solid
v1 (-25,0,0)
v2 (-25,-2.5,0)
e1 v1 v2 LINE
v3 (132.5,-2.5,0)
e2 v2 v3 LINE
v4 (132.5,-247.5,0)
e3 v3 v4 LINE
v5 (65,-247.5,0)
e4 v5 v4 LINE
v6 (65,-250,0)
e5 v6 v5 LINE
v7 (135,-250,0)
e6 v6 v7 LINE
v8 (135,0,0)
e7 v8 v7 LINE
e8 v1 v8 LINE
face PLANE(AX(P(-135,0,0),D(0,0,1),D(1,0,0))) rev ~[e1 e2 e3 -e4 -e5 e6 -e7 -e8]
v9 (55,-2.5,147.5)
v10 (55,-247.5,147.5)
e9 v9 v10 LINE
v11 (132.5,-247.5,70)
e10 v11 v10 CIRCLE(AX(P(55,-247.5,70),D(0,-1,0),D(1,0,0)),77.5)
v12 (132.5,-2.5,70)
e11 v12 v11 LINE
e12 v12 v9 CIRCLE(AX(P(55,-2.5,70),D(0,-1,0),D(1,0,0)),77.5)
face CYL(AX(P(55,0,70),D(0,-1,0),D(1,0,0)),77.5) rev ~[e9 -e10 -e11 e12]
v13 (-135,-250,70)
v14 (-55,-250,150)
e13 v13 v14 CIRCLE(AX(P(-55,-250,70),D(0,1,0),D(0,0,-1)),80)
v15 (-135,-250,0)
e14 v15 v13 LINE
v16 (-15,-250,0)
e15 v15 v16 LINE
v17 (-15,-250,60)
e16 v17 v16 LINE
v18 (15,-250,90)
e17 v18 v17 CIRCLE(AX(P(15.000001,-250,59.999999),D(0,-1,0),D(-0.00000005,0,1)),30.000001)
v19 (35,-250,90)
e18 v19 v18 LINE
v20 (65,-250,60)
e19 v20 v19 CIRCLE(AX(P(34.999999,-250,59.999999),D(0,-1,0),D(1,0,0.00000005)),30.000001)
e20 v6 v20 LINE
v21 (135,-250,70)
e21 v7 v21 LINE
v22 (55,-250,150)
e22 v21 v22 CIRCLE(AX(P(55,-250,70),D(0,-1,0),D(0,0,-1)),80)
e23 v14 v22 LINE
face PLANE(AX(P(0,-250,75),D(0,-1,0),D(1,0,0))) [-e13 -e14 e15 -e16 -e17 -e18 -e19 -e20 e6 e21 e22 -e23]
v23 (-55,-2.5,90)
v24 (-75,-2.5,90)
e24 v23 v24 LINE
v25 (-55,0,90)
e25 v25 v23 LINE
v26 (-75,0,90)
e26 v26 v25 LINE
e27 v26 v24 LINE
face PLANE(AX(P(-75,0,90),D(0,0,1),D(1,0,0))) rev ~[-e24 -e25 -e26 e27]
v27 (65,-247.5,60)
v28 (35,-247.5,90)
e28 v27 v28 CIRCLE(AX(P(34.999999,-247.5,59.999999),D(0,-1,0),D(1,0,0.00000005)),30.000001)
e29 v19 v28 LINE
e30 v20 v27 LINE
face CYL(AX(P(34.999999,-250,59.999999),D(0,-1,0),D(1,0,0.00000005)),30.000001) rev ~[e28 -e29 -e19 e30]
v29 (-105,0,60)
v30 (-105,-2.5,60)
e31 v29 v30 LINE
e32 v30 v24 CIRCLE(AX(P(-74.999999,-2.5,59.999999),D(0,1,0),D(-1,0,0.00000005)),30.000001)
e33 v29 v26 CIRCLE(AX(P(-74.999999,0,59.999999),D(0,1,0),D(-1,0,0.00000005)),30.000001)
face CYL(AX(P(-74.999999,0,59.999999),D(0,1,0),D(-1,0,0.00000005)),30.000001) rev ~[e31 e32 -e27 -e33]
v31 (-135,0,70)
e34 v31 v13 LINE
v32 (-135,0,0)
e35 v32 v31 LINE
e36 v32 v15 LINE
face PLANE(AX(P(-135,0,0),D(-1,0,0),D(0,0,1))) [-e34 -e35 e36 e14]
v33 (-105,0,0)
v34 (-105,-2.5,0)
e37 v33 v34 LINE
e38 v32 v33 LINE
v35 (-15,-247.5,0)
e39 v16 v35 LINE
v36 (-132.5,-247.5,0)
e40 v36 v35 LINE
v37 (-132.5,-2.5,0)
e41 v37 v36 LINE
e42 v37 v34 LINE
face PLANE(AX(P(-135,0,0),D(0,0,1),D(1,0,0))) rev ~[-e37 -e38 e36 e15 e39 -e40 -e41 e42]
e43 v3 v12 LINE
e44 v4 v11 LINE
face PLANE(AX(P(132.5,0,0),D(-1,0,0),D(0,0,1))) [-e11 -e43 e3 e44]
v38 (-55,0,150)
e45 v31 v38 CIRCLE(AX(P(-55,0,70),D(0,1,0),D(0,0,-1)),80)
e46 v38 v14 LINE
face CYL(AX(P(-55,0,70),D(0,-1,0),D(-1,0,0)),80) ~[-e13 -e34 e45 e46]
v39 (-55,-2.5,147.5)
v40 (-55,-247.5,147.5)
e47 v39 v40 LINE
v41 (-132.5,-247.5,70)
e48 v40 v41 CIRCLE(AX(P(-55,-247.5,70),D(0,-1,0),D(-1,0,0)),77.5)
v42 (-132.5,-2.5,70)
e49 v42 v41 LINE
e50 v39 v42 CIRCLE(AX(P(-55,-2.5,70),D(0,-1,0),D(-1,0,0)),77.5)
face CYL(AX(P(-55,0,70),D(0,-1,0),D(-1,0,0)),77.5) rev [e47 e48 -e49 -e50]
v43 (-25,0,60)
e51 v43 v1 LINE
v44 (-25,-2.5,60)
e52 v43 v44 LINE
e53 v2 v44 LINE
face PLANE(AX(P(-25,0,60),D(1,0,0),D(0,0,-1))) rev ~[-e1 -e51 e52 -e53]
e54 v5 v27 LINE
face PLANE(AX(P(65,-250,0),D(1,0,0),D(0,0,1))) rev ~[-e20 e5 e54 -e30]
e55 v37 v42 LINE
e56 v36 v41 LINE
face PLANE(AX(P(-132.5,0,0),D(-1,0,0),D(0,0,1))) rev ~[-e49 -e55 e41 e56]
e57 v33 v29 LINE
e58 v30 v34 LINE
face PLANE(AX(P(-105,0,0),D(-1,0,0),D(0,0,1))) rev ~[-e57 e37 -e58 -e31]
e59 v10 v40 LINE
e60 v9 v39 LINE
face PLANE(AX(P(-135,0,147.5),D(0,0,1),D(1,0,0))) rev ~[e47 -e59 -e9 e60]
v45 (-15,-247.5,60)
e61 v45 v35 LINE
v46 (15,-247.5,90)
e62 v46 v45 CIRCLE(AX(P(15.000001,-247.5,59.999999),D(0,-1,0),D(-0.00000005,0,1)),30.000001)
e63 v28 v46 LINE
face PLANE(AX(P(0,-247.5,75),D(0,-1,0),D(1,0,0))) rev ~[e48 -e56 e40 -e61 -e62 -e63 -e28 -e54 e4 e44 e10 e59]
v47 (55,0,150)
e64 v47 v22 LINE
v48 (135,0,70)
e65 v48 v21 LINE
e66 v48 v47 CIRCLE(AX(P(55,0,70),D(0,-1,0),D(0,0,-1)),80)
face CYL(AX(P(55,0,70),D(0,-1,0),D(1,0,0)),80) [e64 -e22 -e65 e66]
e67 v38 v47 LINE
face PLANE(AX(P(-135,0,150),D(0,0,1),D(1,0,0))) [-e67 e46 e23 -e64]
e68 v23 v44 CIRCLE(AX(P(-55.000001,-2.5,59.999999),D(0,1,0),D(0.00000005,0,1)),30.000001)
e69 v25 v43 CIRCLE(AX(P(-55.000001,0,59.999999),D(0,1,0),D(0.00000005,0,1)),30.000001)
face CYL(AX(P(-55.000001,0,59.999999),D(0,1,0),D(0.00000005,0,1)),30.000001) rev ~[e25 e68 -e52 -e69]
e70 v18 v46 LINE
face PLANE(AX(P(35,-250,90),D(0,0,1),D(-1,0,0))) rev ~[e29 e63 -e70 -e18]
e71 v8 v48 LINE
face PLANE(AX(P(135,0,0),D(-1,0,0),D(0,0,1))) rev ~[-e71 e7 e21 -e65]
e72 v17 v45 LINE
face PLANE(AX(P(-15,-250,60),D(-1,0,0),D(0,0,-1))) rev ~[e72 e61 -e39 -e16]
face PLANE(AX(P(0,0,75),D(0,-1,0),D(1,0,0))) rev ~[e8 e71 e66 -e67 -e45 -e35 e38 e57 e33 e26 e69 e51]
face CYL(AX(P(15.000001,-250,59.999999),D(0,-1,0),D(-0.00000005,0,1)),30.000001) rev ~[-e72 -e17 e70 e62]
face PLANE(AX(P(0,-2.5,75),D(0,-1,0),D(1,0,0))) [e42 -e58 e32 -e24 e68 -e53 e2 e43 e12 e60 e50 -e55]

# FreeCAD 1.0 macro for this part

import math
import FreeCAD as App
import Part
import Sketcher

V = App.Vector
Q = App.Units.Quantity


def edges_at(feature, points):
    """Names of the edges that pass closest to the given points."""
    edges = feature.Shape.Edges
    near = lambda p: min(range(len(edges)), key=lambda i: edges[i].distToShape(Part.Vertex(*p))[0])
    return sorted({f"Edge{near(p) + 1}" for p in points})


def faces_at(feature, points):
    """Names of the faces that lie closest to the given points."""
    faces = feature.Shape.Faces
    near = lambda p: min(range(len(faces)), key=lambda i: faces[i].distToShape(Part.Vertex(*p))[0])
    return sorted({f"Face{near(p) + 1}" for p in points})

doc = App.newDocument("Part")
body = doc.addObject("PartDesign::Body", "Body")

sketch1 = body.newObject("Sketcher::SketchObject", "Sketch")
sketch1.AttachmentSupport = (doc.getObject("XZ_Plane"), [""])
sketch1.MapMode = "FlatFace"
sketch1.addGeometry(Part.LineSegment(V(-135, 150, 0), V(-135, 0, 0)), False)
sketch1.addGeometry(Part.LineSegment(V(-135, 0, 0), V(135, 0, 0)), False)
sketch1.addGeometry(Part.LineSegment(V(135, 0, 0), V(135, 150, 0)), False)
sketch1.addGeometry(Part.LineSegment(V(135, 150, 0), V(-135, 150, 0)), False)
sketch1.addConstraint(Sketcher.Constraint("Coincident", 0, 2, 1, 1))
sketch1.addConstraint(Sketcher.Constraint("Coincident", 1, 2, 2, 1))
sketch1.addConstraint(Sketcher.Constraint("Coincident", 2, 2, 3, 1))
sketch1.addConstraint(Sketcher.Constraint("Coincident", 3, 2, 0, 1))
sketch1.addConstraint(Sketcher.Constraint("Vertical", 0))
sketch1.addConstraint(Sketcher.Constraint("Horizontal", 1))
sketch1.addConstraint(Sketcher.Constraint("Vertical", 2))
sketch1.addConstraint(Sketcher.Constraint("Horizontal", 3))
sketch1.addConstraint(Sketcher.Constraint("Symmetric", 0, 2, 1, 2, -1, 1))
sketch1.addConstraint(Sketcher.Constraint("DistanceX", 1, 1, 1, 2, Q("270 mm")))
sketch1.addConstraint(Sketcher.Constraint("DistanceY", 0, 2, 0, 1, Q("150 mm")))
pad1 = body.newObject("PartDesign::Pad", "Pad")
pad1.Profile = sketch1
pad1.Length = 250
doc.recompute()

fillet = body.newObject("PartDesign::Fillet", "Fillet")
fillet.Base = (pad1, edges_at(pad1, [(-135, -125, 150), (135, -125, 150)]))
fillet.Radius = 80
doc.recompute()

thickness = body.newObject("PartDesign::Thickness", "Thickness")
thickness.Base = (fillet, faces_at(fillet, [(0, -125, 0)]))
thickness.Value = 2.5
thickness.Reversed = True
thickness.Join = "Arc"

sketch2 = body.newObject("Sketcher::SketchObject", "Sketch001")
sketch2.AttachmentSupport = (doc.getObject("XZ_Plane"), [""])
sketch2.MapMode = "FlatFace"
sketch2.AttachmentOffset = App.Placement(V(0, 0, 250), App.Rotation())
sketch2.addGeometry(Part.LineSegment(V(-15, 60, 0), V(-15, 0, 0)), False)
sketch2.addGeometry(Part.LineSegment(V(-15, 0, 0), V(65, 0, 0)), False)
sketch2.addGeometry(Part.LineSegment(V(65, 0, 0), V(65, 60, 0)), False)
sketch2.addGeometry(Part.ArcOfCircle(Part.Circle(V(34.999999, 59.999999, 0), V(0, 0, 1), 30.000001), math.radians(0.000003), math.radians(89.999997)), False)
sketch2.addGeometry(Part.LineSegment(V(35, 90, 0), V(15, 90, 0)), False)
sketch2.addGeometry(Part.ArcOfCircle(Part.Circle(V(15.000001, 59.999999, 0), V(0, 0, 1), 30.000001), math.radians(90.000003), math.radians(179.999997)), False)
sketch2.addConstraint(Sketcher.Constraint("Coincident", 0, 2, 1, 1))
sketch2.addConstraint(Sketcher.Constraint("Coincident", 1, 2, 2, 1))
sketch2.addConstraint(Sketcher.Constraint("Tangent", 2, 2, 3, 1))
sketch2.addConstraint(Sketcher.Constraint("Tangent", 3, 2, 4, 1))
sketch2.addConstraint(Sketcher.Constraint("Tangent", 4, 2, 5, 1))
sketch2.addConstraint(Sketcher.Constraint("Tangent", 5, 2, 0, 1))
sketch2.addConstraint(Sketcher.Constraint("Vertical", 0))
sketch2.addConstraint(Sketcher.Constraint("Horizontal", 1))
sketch2.addConstraint(Sketcher.Constraint("Vertical", 2))
sketch2.addConstraint(Sketcher.Constraint("Horizontal", 4))
sketch2.addConstraint(Sketcher.Constraint("Equal", 3, 5))
sketch2.addConstraint(Sketcher.Constraint("PointOnObject", 0, 2, -1))
sketch2.addConstraint(Sketcher.Constraint("Radius", 3, Q("30.000001 mm")))
sketch2.addConstraint(Sketcher.Constraint("DistanceX", 1, 1, 1, 2, Q("80 mm")))
sketch2.addConstraint(Sketcher.Constraint("DistanceY", 0, 2, 0, 1, Q("60 mm")))
sketch2.addConstraint(Sketcher.Constraint("DistanceX", -1, 1, 3, 3, Q("34.999999 mm")))
pocket1 = body.newObject("PartDesign::Pocket", "Pocket")
pocket1.Profile = sketch2
pocket1.Length = 2.5

sketch3 = body.newObject("Sketcher::SketchObject", "Sketch002")
sketch3.AttachmentSupport = (doc.getObject("XZ_Plane"), [""])
sketch3.MapMode = "FlatFace"
sketch3.addGeometry(Part.LineSegment(V(-25, 60, 0), V(-25, 0, 0)), False)
sketch3.addGeometry(Part.LineSegment(V(-25, 0, 0), V(-105, 0, 0)), False)
sketch3.addGeometry(Part.LineSegment(V(-105, 0, 0), V(-105, 60, 0)), False)
sketch3.addGeometry(Part.ArcOfCircle(Part.Circle(V(-74.999999, 59.999999, 0), V(0, 0, 1), 30.000001), math.radians(90.000003), math.radians(179.999997)), False)
sketch3.addGeometry(Part.LineSegment(V(-75, 90, 0), V(-55, 90, 0)), False)
sketch3.addGeometry(Part.ArcOfCircle(Part.Circle(V(-55.000001, 59.999999, 0), V(0, 0, 1), 30.000001), math.radians(0.000003), math.radians(89.999997)), False)
sketch3.addConstraint(Sketcher.Constraint("Coincident", 0, 2, 1, 1))
sketch3.addConstraint(Sketcher.Constraint("Coincident", 1, 2, 2, 1))
sketch3.addConstraint(Sketcher.Constraint("Tangent", 2, 2, 3, 2))
sketch3.addConstraint(Sketcher.Constraint("Tangent", 3, 1, 4, 1))
sketch3.addConstraint(Sketcher.Constraint("Tangent", 4, 2, 5, 2))
sketch3.addConstraint(Sketcher.Constraint("Tangent", 5, 1, 0, 1))
sketch3.addConstraint(Sketcher.Constraint("Vertical", 0))
sketch3.addConstraint(Sketcher.Constraint("Horizontal", 1))
sketch3.addConstraint(Sketcher.Constraint("Vertical", 2))
sketch3.addConstraint(Sketcher.Constraint("Horizontal", 4))
sketch3.addConstraint(Sketcher.Constraint("Equal", 3, 5))
sketch3.addConstraint(Sketcher.Constraint("PointOnObject", 0, 2, -1))
sketch3.addConstraint(Sketcher.Constraint("Radius", 3, Q("30.000001 mm")))
sketch3.addConstraint(Sketcher.Constraint("DistanceX", 1, 2, 1, 1, Q("80 mm")))
sketch3.addConstraint(Sketcher.Constraint("DistanceY", 0, 2, 0, 1, Q("60 mm")))
sketch3.addConstraint(Sketcher.Constraint("DistanceX", 3, 3, -1, 1, Q("74.999999 mm")))
pocket2 = body.newObject("PartDesign::Pocket", "Pocket001")
pocket2.Profile = sketch3
pocket2.Length = 25
pocket2.Reversed = True

doc.recompute()
